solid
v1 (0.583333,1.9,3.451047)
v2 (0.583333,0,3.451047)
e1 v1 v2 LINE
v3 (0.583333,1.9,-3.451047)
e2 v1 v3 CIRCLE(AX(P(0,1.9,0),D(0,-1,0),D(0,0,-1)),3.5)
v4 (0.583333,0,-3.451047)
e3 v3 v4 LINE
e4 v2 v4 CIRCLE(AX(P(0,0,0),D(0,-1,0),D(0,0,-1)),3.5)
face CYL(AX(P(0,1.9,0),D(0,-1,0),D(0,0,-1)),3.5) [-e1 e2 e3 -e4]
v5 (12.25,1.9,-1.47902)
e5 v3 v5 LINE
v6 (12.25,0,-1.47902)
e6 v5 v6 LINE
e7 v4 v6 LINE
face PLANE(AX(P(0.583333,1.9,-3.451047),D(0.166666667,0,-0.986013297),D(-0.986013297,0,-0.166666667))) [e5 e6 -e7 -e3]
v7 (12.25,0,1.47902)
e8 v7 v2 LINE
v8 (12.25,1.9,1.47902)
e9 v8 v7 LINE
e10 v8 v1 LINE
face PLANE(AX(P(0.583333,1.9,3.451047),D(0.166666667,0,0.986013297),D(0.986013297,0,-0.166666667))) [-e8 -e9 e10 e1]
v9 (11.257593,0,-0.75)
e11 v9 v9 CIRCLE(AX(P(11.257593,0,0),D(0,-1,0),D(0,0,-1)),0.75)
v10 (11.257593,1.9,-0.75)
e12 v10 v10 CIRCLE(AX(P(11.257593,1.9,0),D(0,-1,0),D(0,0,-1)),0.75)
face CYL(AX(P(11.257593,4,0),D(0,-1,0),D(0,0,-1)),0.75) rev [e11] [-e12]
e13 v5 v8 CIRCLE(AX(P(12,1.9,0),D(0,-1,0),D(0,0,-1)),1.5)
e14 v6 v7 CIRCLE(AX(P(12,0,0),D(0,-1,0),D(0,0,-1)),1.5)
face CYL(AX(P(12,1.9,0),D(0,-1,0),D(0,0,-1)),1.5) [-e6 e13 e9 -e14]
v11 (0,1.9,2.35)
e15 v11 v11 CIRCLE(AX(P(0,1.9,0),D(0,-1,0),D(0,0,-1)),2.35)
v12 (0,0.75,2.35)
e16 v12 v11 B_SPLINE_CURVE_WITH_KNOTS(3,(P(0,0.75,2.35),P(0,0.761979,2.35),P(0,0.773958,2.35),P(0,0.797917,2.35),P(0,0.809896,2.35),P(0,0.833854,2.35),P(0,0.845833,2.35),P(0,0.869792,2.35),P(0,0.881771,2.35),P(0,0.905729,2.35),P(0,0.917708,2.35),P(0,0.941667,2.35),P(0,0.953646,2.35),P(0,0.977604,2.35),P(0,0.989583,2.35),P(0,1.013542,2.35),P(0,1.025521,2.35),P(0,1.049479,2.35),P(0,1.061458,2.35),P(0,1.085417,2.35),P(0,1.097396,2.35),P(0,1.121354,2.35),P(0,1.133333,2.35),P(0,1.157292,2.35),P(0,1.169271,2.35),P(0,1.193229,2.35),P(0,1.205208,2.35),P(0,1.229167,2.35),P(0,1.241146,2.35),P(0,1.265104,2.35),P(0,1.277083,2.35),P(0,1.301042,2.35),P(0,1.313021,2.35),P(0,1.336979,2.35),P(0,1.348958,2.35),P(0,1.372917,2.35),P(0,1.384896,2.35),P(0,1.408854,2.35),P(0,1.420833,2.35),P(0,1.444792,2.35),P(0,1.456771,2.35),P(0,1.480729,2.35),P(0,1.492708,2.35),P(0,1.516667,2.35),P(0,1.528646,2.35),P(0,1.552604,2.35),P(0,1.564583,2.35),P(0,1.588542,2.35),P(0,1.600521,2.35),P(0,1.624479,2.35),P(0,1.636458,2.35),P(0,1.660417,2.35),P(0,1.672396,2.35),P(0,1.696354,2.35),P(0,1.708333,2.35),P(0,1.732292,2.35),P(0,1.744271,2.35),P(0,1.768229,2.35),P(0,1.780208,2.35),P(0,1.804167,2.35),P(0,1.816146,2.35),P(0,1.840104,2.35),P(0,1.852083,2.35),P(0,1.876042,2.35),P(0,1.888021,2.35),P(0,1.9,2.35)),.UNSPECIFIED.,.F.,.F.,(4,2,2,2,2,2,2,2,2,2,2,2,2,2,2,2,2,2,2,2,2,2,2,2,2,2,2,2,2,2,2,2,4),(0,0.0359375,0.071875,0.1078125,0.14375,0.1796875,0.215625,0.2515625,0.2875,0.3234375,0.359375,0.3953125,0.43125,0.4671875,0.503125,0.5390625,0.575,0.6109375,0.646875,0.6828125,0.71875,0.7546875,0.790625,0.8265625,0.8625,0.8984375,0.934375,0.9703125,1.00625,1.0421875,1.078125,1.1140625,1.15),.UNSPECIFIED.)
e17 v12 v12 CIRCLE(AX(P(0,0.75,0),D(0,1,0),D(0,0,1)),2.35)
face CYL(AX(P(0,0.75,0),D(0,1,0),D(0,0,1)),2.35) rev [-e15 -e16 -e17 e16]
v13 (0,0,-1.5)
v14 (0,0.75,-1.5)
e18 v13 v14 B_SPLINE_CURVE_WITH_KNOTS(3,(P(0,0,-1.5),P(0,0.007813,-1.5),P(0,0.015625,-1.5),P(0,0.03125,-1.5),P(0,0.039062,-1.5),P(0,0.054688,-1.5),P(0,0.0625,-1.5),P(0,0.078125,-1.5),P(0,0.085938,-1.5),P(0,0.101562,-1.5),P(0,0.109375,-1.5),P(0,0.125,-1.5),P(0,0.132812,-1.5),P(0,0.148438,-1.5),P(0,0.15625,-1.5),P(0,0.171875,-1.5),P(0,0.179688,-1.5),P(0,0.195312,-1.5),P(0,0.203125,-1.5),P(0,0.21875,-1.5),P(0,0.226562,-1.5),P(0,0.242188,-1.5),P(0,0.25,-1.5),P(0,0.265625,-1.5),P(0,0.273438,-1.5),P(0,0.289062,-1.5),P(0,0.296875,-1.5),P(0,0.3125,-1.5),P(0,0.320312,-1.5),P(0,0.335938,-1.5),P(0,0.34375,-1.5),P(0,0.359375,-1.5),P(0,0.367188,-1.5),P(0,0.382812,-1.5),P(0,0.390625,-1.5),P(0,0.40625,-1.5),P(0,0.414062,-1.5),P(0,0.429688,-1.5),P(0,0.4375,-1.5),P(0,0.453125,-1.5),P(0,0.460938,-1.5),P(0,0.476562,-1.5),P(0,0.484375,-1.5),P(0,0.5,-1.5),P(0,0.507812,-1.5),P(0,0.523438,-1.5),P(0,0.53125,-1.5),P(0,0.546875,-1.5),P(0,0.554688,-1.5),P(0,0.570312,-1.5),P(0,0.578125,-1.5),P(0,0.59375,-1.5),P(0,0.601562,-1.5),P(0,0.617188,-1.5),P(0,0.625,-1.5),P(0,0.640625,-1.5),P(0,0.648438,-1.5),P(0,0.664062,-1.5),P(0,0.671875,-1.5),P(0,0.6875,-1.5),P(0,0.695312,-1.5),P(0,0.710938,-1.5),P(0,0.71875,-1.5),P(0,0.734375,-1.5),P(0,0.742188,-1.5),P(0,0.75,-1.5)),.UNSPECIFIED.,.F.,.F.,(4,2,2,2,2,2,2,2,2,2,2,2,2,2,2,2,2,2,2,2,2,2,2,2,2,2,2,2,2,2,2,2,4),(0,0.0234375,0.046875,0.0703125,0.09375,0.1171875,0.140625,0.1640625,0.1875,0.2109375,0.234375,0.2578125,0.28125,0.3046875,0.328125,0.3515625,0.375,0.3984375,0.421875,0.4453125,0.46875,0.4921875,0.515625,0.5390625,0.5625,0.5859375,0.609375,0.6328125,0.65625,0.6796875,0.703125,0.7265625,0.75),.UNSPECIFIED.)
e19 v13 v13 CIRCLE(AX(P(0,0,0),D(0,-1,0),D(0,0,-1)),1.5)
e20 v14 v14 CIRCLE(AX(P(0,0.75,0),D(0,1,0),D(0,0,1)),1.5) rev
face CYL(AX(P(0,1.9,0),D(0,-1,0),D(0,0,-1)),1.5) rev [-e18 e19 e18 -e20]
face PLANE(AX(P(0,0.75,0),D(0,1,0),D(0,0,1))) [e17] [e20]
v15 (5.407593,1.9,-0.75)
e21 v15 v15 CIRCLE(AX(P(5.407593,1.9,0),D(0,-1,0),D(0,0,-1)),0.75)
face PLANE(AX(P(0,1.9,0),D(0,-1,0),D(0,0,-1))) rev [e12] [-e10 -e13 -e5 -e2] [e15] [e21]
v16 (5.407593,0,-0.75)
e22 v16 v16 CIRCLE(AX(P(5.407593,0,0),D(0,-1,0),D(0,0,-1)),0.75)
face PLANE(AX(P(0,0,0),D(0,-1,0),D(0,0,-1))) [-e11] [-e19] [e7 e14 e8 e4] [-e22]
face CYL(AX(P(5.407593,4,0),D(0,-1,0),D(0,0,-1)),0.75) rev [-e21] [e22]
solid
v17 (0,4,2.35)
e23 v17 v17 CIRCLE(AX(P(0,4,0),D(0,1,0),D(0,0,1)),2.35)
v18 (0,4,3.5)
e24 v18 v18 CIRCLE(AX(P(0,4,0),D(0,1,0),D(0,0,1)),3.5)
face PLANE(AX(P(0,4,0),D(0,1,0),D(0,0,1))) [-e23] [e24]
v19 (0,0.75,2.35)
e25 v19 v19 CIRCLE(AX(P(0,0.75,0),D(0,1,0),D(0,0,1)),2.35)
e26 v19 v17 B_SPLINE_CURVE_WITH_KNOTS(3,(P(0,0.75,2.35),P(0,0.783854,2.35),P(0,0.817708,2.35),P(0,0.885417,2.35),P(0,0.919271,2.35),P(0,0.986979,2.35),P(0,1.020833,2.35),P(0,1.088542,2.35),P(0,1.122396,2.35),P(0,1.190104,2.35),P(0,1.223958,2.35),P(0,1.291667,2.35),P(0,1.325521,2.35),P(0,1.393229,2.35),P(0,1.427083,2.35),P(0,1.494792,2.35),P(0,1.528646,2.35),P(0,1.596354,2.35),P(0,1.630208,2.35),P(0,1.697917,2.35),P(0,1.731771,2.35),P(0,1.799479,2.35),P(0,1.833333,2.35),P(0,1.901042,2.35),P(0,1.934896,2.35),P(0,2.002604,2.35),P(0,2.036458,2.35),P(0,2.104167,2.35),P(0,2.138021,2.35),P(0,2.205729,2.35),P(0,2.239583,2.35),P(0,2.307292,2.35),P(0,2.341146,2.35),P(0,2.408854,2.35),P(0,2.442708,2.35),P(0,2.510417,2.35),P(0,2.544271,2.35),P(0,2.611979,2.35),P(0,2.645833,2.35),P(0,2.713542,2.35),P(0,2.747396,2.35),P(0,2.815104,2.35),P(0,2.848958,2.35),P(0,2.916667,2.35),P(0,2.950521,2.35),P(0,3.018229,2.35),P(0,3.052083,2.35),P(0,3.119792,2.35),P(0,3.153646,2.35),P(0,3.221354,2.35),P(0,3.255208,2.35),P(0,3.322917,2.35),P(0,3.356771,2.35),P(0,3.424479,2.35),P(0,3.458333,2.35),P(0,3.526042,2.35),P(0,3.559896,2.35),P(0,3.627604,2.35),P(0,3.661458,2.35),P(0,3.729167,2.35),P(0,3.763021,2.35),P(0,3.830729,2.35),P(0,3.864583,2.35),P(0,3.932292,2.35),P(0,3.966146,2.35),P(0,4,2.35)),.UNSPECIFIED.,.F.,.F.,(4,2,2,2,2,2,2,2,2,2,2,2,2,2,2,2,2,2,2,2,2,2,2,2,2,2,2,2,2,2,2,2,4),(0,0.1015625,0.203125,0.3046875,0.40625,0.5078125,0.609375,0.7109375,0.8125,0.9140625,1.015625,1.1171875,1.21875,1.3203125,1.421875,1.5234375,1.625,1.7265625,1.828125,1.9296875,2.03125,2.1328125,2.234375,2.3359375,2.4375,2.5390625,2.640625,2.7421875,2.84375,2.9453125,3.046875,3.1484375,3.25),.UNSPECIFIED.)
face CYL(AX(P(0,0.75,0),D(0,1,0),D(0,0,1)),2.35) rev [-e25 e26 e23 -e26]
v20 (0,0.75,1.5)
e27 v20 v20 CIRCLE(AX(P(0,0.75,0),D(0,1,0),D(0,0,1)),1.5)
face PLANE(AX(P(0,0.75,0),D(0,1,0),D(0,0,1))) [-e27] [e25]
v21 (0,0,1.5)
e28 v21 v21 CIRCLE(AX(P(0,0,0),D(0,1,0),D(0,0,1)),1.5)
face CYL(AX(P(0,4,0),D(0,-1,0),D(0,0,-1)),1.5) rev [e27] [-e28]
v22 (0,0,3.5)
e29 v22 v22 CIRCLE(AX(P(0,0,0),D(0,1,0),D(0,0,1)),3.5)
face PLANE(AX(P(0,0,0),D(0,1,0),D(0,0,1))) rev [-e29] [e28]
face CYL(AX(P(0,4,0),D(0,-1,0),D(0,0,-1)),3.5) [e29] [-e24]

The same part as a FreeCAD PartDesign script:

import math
import FreeCAD as App
import Part
import Sketcher
Q = App.Units.Quantity

doc = App.newDocument("Part")
body = doc.addObject("PartDesign::Body", "Body")

# Sketch on XZ plane
sketch1 = doc.addObject("Sketcher::SketchObject", "Sketch")
body.addObject(sketch1)
sketch1.AttachmentSupport = (doc.XZ_Plane, [""])
sketch1.MapMode = "FlatFace"
sketch1.addGeometry([
    Part.Circle(App.Vector(0, 0, 0), App.Vector(0, 0, 1), 3.5),
    Part.Circle(App.Vector(0, 0, 0), App.Vector(0, 0, 1), 1.5),
], False)
sketch1.addConstraint([
    Sketcher.Constraint("Coincident", 0, 3, -1, 1),
    Sketcher.Constraint("Coincident", 1, 3, -1, 1),
    Sketcher.Constraint("Diameter", 0, Q("7 mm")),
    Sketcher.Constraint("Diameter", 1, Q("3 mm")),
])
pad1 = doc.addObject("PartDesign::Pad", "Pad")
body.addObject(pad1)
pad1.Profile = sketch1
pad1.Length = 4
pad1.Reversed = True
body2 = doc.addObject("PartDesign::Body", "Body001")

# Sketch on XZ plane
sketch2 = doc.addObject("Sketcher::SketchObject", "Sketch001")
body2.addObject(sketch2)
sketch2.AttachmentSupport = (doc.getObject("XZ_Plane001"), [""])
sketch2.MapMode = "FlatFace"
sketch2.addGeometry([
    Part.LineSegment(App.Vector(12.2, 1.5, 0), App.Vector(0.6, 3.5, 0)),  # 0
    Part.ArcOfCircle(Part.Circle(App.Vector(0, 0, 0), App.Vector(0, 0, 1), 3.5), math.radians(80), math.radians(280)),  # 1
    Part.LineSegment(App.Vector(0.6, -3.5, 0), App.Vector(12.2, -1.5, 0)),  # 2
    Part.ArcOfCircle(Part.Circle(App.Vector(12, 0, 0), App.Vector(0, 0, 1), 1.5), math.radians(-80), math.radians(80)),  # 3
    Part.Circle(App.Vector(0, 0, 0), App.Vector(0, 0, 1), 1.5),  # 4
], False)
sketch2.addConstraint([
    Sketcher.Constraint("Tangent", 0, 2, 1, 1),
    Sketcher.Constraint("Tangent", 1, 2, 2, 1),
    Sketcher.Constraint("Tangent", 2, 2, 3, 1),
    Sketcher.Constraint("Tangent", 3, 2, 0, 1),
    Sketcher.Constraint("Coincident", 1, 3, -1, 1),
    Sketcher.Constraint("Coincident", 4, 3, -1, 1),
    Sketcher.Constraint("Equal", 3, 4),
    Sketcher.Constraint("PointOnObject", 3, 3, -1),
    Sketcher.Constraint("Diameter", 4, Q("3 mm")),
    Sketcher.Constraint("Radius", 1, Q("3.5 mm")),
    Sketcher.Constraint("DistanceX", -1, 1, 3, 3, Q("12 mm")),
])
pad2 = doc.addObject("PartDesign::Pad", "Pad001")
body2.addObject(pad2)
pad2.Profile = sketch2
pad2.Length = 1.9
pad2.Reversed = True
body3 = doc.addObject("PartDesign::Body", "Body002")

# Sketch on XZ plane
sketch3 = doc.addObject("Sketcher::SketchObject", "Sketch002")
body3.addObject(sketch3)
sketch3.AttachmentSupport = (doc.getObject("XZ_Plane002"), [""])
sketch3.MapMode = "FlatFace"
sketch3.AttachmentOffset = App.Placement(App.Vector(0, 0, -4), App.Rotation())
sketch3.addGeometry(Part.Circle(App.Vector(0, 0, 0), App.Vector(0, 0, 1), 2.4), False)
sketch3.addConstraint([
    Sketcher.Constraint("Coincident", 0, 3, -1, 1),
    Sketcher.Constraint("Diameter", 0, Q("4.7 mm")),
])
pad3 = doc.addObject("PartDesign::Pad", "Pad002")
body3.addObject(pad3)
pad3.Profile = sketch3
pad3.Length = 3.25
doc.recompute()

body4 = doc.addObject("PartDesign::Body", "Body003")
body4.BaseFeature = body3
boolean = doc.addObject("PartDesign::Boolean", "Boolean")
body.addObject(boolean)
boolean.Type = "Cut"
boolean.addObjects([body4])
doc.recompute()

boolean2 = doc.addObject("PartDesign::Boolean", "Boolean001")
body2.addObject(boolean2)
boolean2.Type = "Cut"
boolean2.addObjects([body3])

# Sketch on XZ plane
sketch4 = doc.addObject("Sketcher::SketchObject", "Sketch003")
body2.addObject(sketch4)
sketch4.AttachmentSupport = (doc.getObject("XZ_Plane001"), [""])
sketch4.MapMode = "FlatFace"
sketch4.addGeometry([
    Part.Circle(App.Vector(11.3, 0, 0), App.Vector(0, 0, 1), 0.8),
    Part.Circle(App.Vector(5.4, 0, 0), App.Vector(0, 0, 1), 0.8),
], False)
sketch4.addConstraint([
    Sketcher.Constraint("Equal", 0, 1),
    Sketcher.Constraint("PointOnObject", 0, 3, -1),
    Sketcher.Constraint("PointOnObject", 1, 3, -1),
    Sketcher.Constraint("Diameter", 0, Q("1.5 mm")),
    Sketcher.Constraint("DistanceX", 1, 3, 0, 3, Q("5.85 mm")),
    Sketcher.Constraint("DistanceX", -1, 1, 0, 3, Q("11.257593 mm")),
])
pocket1 = doc.addObject("PartDesign::Pocket", "Pocket")
body2.addObject(pocket1)
pocket1.Profile = sketch4
pocket1.Type = "ThroughAll"

doc.recompute()
